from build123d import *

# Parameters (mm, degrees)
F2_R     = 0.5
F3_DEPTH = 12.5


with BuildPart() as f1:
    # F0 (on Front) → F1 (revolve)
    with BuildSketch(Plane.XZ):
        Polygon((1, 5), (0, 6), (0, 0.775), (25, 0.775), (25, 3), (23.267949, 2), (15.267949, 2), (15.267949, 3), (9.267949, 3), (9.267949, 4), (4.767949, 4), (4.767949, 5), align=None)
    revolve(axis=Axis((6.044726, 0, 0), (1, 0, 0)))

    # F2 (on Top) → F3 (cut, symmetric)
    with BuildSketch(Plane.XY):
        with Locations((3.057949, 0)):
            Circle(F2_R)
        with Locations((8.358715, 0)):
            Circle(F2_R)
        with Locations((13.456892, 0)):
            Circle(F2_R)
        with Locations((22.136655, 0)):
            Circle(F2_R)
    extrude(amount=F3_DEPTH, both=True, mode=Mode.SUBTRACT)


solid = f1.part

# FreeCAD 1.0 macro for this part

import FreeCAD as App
import Part
import Sketcher
Q = App.Units.Quantity

doc = App.newDocument("Part")
body = doc.addObject("PartDesign::Body", "Body")

# Sketch on XZ plane
sketch1 = body.newObject("Sketcher::SketchObject", "Sketch")
sketch1.AttachmentSupport = (doc.getObject("XZ_Plane"), [""])
sketch1.MapMode = "FlatFace"
sketch1.addGeometry([
    Part.LineSegment(App.Vector(1, 5, 0), App.Vector(0, 6, 0)),  # 0
    Part.LineSegment(App.Vector(0, 6, 0), App.Vector(0, 0.775, 0)),  # 1
    Part.LineSegment(App.Vector(0, 0.775, 0), App.Vector(25, 0.775, 0)),  # 2
    Part.LineSegment(App.Vector(25, 0.775, 0), App.Vector(25, 3, 0)),  # 3
    Part.LineSegment(App.Vector(25, 3, 0), App.Vector(23.267949, 2, 0)),  # 4
    Part.LineSegment(App.Vector(23.267949, 2, 0), App.Vector(15.267949, 2, 0)),  # 5
    Part.LineSegment(App.Vector(15.267949, 2, 0), App.Vector(15.267949, 3, 0)),  # 6
    Part.LineSegment(App.Vector(15.267949, 3, 0), App.Vector(9.267949, 3, 0)),  # 7
    Part.LineSegment(App.Vector(9.267949, 3, 0), App.Vector(9.267949, 4, 0)),  # 8
    Part.LineSegment(App.Vector(9.267949, 4, 0), App.Vector(4.767949, 4, 0)),  # 9
    Part.LineSegment(App.Vector(4.767949, 4, 0), App.Vector(4.767949, 5, 0)),  # 10
    Part.LineSegment(App.Vector(4.767949, 5, 0), App.Vector(1, 5, 0)),  # 11
], False)
sketch1.addConstraint([
    Sketcher.Constraint("Coincident", 0, 2, 1, 1),
    Sketcher.Constraint("Coincident", 1, 2, 2, 1),
    Sketcher.Constraint("Coincident", 2, 2, 3, 1),
    Sketcher.Constraint("Coincident", 3, 2, 4, 1),
    Sketcher.Constraint("Coincident", 4, 2, 5, 1),
    Sketcher.Constraint("Coincident", 5, 2, 6, 1),
    Sketcher.Constraint("Coincident", 6, 2, 7, 1),
    Sketcher.Constraint("Coincident", 7, 2, 8, 1),
    Sketcher.Constraint("Coincident", 8, 2, 9, 1),
    Sketcher.Constraint("Coincident", 9, 2, 10, 1),
    Sketcher.Constraint("Coincident", 10, 2, 11, 1),
    Sketcher.Constraint("Coincident", 11, 2, 0, 1),
    Sketcher.Constraint("Vertical", 1),
    Sketcher.Constraint("Horizontal", 2),
    Sketcher.Constraint("Vertical", 3),
    Sketcher.Constraint("Horizontal", 5),
    Sketcher.Constraint("Vertical", 6),
    Sketcher.Constraint("Horizontal", 7),
    Sketcher.Constraint("Vertical", 8),
    Sketcher.Constraint("Horizontal", 9),
    Sketcher.Constraint("Vertical", 10),
    Sketcher.Constraint("Horizontal", 11),
    Sketcher.Constraint("PointOnObject", 0, 2, -2),
    Sketcher.Constraint("Horizontal", 3, 2, 6, 2),
    Sketcher.Constraint("Equal", 6, 8),
    Sketcher.Constraint("Equal", 8, 10),
    Sketcher.Constraint("DistanceX", 2, 1, 2, 2, 25.0),
    Sketcher.Constraint("DistanceX", 5, 2, 5, 1, 8.0),
    Sketcher.Constraint("DistanceX", 7, 2, 7, 1, 6.0),
    Sketcher.Constraint("DistanceY", 6, 1, 6, 2, 1.0),
    Sketcher.Constraint("Angle", 0, Q("135 deg")),
    Sketcher.Constraint("Angle", 4, Q("-150.000003 deg")),
    Sketcher.Constraint("DistanceX", 9, 2, 9, 1, 4.5),
    Sketcher.Constraint("DistanceY", -1, 1, 0, 2, 6.0),
    Sketcher.Constraint("DistanceY", -1, 1, 3, 2, 3.0),
    Sketcher.Constraint("DistanceY", 1, 2, 1, 1, 5.225),
])
revolution = body.newObject("PartDesign::Revolution", "Revolution")
revolution.Profile = sketch1
revolution.ReferenceAxis = (sketch1, ["H_Axis"])
revolution.Angle = 360

# Sketch on XY plane
sketch2 = body.newObject("Sketcher::SketchObject", "Sketch001")
sketch2.AttachmentSupport = (doc.getObject("XY_Plane"), [""])
sketch2.MapMode = "FlatFace"
sketch2.addGeometry([
    Part.Circle(App.Vector(3.057949, 0, 0), App.Vector(0, 0, 1), 0.5),
    Part.Circle(App.Vector(8.358715, 0, 0), App.Vector(0, 0, 1), 0.5),
    Part.Circle(App.Vector(13.456892, 0, 0), App.Vector(0, 0, 1), 0.5),
    Part.Circle(App.Vector(22.136655, 0, 0), App.Vector(0, 0, 1), 0.5),
], False)
sketch2.addConstraint([
    Sketcher.Constraint("Equal", 0, 1),
    Sketcher.Constraint("Equal", 1, 2),
    Sketcher.Constraint("Equal", 2, 3),
    Sketcher.Constraint("PointOnObject", 0, 3, -1),
    Sketcher.Constraint("PointOnObject", 1, 3, -1),
    Sketcher.Constraint("PointOnObject", 2, 3, -1),
    Sketcher.Constraint("PointOnObject", 3, 3, -1),
    Sketcher.Constraint("Diameter", 0, 1.0),
    Sketcher.Constraint("DistanceX", -1, 1, 0, 3, 3.057949),
    Sketcher.Constraint("DistanceX", 1, 3, 3, 3, 13.77794),
    Sketcher.Constraint("DistanceX", -1, 1, 1, 3, 8.358715),
    Sketcher.Constraint("DistanceX", -1, 1, 2, 3, 13.456892),
])
pocket1 = body.newObject("PartDesign::Pocket", "Pocket")
pocket1.Profile = sketch2
pocket1.Length = 25
pocket1.Midplane = True

doc.recompute()
